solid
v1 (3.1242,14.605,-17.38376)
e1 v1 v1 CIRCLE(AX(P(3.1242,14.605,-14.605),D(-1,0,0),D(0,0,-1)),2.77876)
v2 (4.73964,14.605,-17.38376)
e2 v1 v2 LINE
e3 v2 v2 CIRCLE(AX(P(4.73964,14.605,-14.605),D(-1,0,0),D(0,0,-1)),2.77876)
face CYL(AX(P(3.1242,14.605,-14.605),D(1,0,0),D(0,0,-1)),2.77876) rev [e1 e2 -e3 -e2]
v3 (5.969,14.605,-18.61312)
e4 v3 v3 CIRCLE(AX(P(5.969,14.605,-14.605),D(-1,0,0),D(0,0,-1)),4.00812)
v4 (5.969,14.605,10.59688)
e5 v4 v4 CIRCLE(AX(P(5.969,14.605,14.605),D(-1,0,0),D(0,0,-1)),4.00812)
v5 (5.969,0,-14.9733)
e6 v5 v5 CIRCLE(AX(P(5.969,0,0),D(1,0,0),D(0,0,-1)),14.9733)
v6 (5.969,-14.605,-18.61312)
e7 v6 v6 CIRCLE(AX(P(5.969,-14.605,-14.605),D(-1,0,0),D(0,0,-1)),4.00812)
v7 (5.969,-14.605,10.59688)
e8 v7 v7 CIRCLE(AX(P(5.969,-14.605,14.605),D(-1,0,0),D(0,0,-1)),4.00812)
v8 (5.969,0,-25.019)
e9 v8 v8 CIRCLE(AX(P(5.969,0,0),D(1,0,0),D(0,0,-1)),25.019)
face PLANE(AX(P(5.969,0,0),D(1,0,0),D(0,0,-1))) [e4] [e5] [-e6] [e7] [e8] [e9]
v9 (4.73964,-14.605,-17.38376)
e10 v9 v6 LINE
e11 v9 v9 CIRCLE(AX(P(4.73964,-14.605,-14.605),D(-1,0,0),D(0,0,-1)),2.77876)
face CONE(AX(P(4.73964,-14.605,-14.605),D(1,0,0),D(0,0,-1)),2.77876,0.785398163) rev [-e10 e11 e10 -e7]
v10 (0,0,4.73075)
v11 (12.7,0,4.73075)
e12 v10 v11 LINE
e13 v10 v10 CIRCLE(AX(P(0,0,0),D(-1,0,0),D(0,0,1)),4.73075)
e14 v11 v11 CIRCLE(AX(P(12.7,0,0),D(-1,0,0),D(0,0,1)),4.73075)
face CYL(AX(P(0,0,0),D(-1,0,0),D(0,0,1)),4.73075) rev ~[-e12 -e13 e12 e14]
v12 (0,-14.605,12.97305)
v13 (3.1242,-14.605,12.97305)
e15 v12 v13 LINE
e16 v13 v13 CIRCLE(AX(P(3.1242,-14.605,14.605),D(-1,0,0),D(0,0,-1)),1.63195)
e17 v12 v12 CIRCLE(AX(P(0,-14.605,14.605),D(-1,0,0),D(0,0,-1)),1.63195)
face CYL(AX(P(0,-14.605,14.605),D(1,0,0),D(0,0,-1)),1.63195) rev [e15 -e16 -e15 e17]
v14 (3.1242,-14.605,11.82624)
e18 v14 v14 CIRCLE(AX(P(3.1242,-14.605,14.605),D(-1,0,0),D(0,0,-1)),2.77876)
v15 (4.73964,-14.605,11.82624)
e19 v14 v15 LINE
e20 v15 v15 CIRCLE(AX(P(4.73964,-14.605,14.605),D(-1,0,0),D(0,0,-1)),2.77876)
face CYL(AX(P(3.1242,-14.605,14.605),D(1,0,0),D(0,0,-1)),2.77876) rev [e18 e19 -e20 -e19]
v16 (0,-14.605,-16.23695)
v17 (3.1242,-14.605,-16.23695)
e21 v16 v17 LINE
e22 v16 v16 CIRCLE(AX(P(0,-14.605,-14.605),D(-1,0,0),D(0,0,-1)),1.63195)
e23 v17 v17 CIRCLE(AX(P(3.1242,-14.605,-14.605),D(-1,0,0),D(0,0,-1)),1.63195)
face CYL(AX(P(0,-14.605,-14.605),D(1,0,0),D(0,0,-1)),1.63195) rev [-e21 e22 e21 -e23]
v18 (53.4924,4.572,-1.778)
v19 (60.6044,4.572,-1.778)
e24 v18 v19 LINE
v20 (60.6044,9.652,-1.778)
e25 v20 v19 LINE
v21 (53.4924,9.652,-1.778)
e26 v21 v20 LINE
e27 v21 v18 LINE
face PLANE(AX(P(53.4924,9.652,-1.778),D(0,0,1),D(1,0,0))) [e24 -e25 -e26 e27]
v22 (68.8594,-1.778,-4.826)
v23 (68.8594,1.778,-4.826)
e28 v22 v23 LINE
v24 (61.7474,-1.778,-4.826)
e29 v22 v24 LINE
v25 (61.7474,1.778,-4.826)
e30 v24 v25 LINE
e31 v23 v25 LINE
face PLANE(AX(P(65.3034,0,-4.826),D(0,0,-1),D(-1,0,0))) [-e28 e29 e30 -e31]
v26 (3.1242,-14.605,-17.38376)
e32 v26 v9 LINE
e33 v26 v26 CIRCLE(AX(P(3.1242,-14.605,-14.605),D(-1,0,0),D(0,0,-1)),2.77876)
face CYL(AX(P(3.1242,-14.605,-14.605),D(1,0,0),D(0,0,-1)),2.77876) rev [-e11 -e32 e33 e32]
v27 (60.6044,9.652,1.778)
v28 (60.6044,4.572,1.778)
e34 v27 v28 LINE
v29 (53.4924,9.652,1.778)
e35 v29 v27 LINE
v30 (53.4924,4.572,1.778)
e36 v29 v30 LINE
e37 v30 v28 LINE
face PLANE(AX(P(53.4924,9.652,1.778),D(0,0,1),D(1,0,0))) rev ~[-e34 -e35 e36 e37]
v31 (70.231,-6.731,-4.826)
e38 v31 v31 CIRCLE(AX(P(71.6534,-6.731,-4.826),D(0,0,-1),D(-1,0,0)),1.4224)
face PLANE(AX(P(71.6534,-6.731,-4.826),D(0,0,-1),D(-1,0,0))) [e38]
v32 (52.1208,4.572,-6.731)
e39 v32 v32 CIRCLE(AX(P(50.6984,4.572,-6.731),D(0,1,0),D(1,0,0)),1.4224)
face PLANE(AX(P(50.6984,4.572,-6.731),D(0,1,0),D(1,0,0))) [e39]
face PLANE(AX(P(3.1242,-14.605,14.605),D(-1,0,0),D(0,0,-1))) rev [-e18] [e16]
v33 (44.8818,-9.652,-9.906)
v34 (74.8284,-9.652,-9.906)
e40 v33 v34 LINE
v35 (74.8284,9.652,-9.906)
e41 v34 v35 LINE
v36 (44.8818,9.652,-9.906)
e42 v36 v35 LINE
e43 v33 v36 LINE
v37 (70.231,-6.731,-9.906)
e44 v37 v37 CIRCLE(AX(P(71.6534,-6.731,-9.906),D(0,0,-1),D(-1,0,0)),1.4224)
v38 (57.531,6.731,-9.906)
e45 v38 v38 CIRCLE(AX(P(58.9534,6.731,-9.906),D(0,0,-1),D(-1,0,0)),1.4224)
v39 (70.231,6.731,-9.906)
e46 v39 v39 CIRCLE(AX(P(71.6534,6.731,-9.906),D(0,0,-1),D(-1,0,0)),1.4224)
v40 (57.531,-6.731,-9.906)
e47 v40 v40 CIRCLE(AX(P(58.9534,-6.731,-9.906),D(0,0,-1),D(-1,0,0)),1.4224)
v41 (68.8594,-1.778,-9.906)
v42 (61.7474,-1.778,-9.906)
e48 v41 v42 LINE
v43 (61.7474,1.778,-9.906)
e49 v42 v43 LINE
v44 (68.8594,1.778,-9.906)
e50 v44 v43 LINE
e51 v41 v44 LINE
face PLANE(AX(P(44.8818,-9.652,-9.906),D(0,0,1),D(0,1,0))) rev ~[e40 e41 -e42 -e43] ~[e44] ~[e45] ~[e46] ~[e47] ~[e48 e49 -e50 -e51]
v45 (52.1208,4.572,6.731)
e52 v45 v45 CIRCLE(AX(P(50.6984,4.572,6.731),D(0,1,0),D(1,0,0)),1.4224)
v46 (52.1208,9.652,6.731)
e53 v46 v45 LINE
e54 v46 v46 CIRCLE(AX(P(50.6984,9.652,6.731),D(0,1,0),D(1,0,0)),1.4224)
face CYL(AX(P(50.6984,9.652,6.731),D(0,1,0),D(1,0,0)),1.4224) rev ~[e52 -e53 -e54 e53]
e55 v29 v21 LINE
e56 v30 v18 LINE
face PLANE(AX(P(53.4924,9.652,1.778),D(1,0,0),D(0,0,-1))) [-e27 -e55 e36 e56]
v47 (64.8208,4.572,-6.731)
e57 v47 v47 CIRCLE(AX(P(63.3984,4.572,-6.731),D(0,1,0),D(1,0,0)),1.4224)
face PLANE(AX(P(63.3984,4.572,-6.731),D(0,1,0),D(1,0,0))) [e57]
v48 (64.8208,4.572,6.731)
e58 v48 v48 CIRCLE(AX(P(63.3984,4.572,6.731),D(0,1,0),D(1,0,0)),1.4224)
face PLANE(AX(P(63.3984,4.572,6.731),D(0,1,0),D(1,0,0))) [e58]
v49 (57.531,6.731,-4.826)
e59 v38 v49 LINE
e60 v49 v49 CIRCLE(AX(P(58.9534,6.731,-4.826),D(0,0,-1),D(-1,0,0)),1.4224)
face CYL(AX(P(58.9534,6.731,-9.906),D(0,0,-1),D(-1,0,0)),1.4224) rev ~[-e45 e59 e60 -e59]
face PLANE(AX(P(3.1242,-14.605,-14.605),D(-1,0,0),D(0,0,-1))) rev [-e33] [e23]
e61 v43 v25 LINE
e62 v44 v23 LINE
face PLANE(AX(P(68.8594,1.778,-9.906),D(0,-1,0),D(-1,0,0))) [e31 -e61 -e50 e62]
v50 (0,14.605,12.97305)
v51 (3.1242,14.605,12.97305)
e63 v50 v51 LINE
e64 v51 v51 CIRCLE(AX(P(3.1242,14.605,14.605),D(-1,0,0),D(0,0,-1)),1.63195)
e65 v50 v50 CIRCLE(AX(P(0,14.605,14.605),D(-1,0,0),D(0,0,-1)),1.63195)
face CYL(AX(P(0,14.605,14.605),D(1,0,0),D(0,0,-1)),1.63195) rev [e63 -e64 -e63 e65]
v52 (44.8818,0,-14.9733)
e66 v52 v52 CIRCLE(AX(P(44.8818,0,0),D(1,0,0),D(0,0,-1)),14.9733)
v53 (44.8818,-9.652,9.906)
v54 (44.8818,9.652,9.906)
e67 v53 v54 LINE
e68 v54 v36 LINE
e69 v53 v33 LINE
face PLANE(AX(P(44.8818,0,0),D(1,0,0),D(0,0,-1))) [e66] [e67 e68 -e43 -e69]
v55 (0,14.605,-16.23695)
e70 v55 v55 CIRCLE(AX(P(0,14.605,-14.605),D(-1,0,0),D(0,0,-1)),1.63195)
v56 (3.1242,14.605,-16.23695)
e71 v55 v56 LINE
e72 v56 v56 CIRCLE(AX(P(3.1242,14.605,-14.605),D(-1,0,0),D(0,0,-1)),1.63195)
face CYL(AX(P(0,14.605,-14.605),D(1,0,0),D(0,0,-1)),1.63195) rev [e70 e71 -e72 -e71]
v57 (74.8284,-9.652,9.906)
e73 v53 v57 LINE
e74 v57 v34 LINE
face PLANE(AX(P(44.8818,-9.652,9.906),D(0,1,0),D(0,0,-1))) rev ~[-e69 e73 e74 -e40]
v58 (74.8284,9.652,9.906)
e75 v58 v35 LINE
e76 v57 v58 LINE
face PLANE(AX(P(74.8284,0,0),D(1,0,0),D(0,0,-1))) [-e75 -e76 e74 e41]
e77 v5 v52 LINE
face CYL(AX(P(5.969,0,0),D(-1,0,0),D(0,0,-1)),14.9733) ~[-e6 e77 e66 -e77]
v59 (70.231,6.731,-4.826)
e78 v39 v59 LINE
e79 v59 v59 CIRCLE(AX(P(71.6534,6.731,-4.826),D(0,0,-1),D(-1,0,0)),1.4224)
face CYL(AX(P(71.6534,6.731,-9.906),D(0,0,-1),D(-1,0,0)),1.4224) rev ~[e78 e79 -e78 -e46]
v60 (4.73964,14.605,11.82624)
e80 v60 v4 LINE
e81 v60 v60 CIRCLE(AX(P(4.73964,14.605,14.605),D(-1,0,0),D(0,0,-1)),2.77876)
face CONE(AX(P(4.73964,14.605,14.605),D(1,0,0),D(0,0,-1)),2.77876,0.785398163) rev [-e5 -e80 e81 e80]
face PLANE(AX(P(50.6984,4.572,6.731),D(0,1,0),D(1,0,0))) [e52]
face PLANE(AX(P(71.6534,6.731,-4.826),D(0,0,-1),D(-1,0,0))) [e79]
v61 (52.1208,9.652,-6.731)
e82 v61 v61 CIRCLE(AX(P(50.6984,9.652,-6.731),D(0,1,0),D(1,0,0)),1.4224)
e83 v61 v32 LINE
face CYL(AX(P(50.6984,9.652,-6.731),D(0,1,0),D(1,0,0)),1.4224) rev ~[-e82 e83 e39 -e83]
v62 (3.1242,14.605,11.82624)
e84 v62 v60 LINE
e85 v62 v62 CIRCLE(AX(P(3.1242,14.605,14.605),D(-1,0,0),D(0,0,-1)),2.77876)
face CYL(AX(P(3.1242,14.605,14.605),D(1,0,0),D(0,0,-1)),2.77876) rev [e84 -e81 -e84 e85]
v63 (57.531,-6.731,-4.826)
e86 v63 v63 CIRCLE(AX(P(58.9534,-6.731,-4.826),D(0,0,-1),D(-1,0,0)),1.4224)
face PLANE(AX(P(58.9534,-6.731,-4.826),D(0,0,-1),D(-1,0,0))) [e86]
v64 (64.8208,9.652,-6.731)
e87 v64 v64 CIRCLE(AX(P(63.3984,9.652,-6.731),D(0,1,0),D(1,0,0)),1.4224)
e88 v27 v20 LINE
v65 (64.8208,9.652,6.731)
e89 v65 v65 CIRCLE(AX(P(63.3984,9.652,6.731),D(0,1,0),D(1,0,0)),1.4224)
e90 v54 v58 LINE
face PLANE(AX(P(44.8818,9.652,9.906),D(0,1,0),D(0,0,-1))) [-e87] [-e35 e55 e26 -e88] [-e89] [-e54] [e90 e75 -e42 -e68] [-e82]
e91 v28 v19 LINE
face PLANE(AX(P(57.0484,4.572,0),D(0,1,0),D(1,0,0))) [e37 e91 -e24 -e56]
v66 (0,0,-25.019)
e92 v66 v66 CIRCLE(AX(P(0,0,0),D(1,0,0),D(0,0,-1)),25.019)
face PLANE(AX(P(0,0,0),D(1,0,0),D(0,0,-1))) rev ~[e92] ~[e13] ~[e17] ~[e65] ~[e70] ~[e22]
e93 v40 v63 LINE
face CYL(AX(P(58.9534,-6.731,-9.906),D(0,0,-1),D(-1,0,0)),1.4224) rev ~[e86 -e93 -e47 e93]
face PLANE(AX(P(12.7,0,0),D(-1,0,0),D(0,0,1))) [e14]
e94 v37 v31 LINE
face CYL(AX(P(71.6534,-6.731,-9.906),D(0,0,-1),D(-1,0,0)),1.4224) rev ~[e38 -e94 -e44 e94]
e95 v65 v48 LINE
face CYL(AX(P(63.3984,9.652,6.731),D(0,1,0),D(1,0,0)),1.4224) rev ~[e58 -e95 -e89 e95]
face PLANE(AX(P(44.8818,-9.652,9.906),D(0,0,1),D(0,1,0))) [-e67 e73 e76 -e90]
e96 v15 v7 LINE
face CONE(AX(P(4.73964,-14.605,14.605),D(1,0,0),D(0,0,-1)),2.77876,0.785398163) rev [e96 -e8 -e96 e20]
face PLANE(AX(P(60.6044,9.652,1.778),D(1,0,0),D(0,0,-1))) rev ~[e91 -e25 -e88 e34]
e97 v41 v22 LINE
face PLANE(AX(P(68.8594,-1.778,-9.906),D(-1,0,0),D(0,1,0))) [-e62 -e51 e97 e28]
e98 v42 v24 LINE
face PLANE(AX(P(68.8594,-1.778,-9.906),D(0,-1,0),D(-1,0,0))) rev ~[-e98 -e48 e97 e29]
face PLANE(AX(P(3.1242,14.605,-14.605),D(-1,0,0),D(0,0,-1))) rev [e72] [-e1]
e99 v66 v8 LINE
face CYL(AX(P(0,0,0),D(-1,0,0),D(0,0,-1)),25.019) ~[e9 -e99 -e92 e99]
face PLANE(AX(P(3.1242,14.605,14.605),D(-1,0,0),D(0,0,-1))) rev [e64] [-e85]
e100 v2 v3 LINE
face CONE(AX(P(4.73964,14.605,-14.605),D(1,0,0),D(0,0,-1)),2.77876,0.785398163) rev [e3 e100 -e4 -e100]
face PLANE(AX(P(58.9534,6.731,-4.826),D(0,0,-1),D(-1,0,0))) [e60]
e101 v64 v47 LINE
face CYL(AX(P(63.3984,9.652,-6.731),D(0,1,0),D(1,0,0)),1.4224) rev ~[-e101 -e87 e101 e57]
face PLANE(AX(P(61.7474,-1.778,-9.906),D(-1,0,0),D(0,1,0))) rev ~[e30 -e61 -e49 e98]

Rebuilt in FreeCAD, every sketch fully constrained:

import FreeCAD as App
import Part
import Sketcher
from FreeCAD import Vector
Q = App.Units.Quantity

doc = App.newDocument("Part")
body = doc.addObject("PartDesign::Body", "Body")

sketch1 = doc.addObject("Sketcher::SketchObject", "Sketch")
body.addObject(sketch1)
sketch1.AttachmentSupport = (doc.YZ_Plane, [""])
sketch1.MapMode = "FlatFace"
sketch1.addGeometry(Part.Circle(Vector(0, 0, 0), Vector(0, 0, 1), 25), False)
sketch1.addConstraint([
    Sketcher.Constraint("Coincident", 0, 3, -1, 1),
    Sketcher.Constraint("Diameter", 0, Q("1.97 in")),
])
pad1 = doc.addObject("PartDesign::Pad", "Pad")
body.addObject(pad1)
pad1.Profile = sketch1
pad1.Length = Q("0.235 in")

sketch2 = doc.addObject("Sketcher::SketchObject", "Sketch001")
body.addObject(sketch2)
sketch2.AttachmentSupport = (doc.YZ_Plane, [""])
sketch2.MapMode = "FlatFace"
sketch2.AttachmentOffset = App.Placement(Vector(0, 0, 0.235 * 25.4), App.Rotation())
sketch2.addGeometry(Part.Circle(Vector(0, 0, 0), Vector(0, 0, 1), 15), False)
sketch2.addConstraint([
    Sketcher.Constraint("Coincident", 0, 3, -1, 1),
    Sketcher.Constraint("Diameter", 0, Q("1.179 in")),
])
pad2 = doc.addObject("PartDesign::Pad", "Pad001")
body.addObject(pad2)
pad2.Profile = sketch2
pad2.Length = Q("1.532 in")

sketch3 = doc.addObject("Sketcher::SketchObject", "Sketch002")
body.addObject(sketch3)
sketch3.AttachmentSupport = (doc.YZ_Plane, [""])
sketch3.MapMode = "FlatFace"
sketch3.AttachmentOffset = App.Placement(Vector(0, 0, 1.767 * 25.4), App.Rotation())
sketch3.addGeometry([
    Part.LineSegment(Vector(10, 10, 0), Vector(-10, 10, 0)),
    Part.LineSegment(Vector(-10, 10, 0), Vector(-10, -10, 0)),
    Part.LineSegment(Vector(-10, -10, 0), Vector(10, -10, 0)),
    Part.LineSegment(Vector(10, -10, 0), Vector(10, 10, 0)),
], False)
sketch3.addConstraint([
    Sketcher.Constraint("Coincident", 0, 2, 1, 1),
    Sketcher.Constraint("Coincident", 1, 2, 2, 1),
    Sketcher.Constraint("Coincident", 2, 2, 3, 1),
    Sketcher.Constraint("Coincident", 3, 2, 0, 1),
    Sketcher.Constraint("Horizontal", 0),
    Sketcher.Constraint("Vertical", 1),
    Sketcher.Constraint("Horizontal", 2),
    Sketcher.Constraint("Vertical", 3),
    Sketcher.Constraint("Symmetric", 0, 2, 2, 2, -1, 1),
    Sketcher.Constraint("DistanceX", 0, 2, 0, 1, Q("0.76 in")),
    Sketcher.Constraint("DistanceY", 1, 2, 1, 1, Q("0.78 in")),
])
pad3 = doc.addObject("PartDesign::Pad", "Pad002")
body.addObject(pad3)
pad3.Profile = sketch3
pad3.Length = Q("1.179 in")

sketch4 = doc.addObject("Sketcher::SketchObject", "Sketch003")
body.addObject(sketch4)
sketch4.AttachmentSupport = (doc.XZ_Plane, [""])
sketch4.MapMode = "FlatFace"
sketch4.AttachmentOffset = App.Placement(Vector(0, 0, -0.575 * 25.4), App.Rotation())
sketch4.addGeometry([
    Part.LineSegment(Vector(0, -14.6, 0), Vector(6, -14.6, 0)),
    Part.LineSegment(Vector(6, -14.6, 0), Vector(6, -18.6, 0)),
    Part.LineSegment(Vector(6, -18.6, 0), Vector(4.7, -17.4, 0)),
    Part.LineSegment(Vector(4.7, -17.4, 0), Vector(3.1, -17.4, 0)),
    Part.LineSegment(Vector(3.1, -17.4, 0), Vector(3.1, -16.2, 0)),
    Part.LineSegment(Vector(3.1, -16.2, 0), Vector(0, -16.2, 0)),
    Part.LineSegment(Vector(0, -16.2, 0), Vector(0, -14.6, 0)),
], False)
sketch4.addGeometry(Part.LineSegment(Vector(6, -14.6, 0), Vector(0, -14.6, 0)), True)
sketch4.addConstraint([
    Sketcher.Constraint("Coincident", 0, 2, 1, 1),
    Sketcher.Constraint("Coincident", 1, 2, 2, 1),
    Sketcher.Constraint("Coincident", 2, 2, 3, 1),
    Sketcher.Constraint("Coincident", 3, 2, 4, 1),
    Sketcher.Constraint("Coincident", 4, 2, 5, 1),
    Sketcher.Constraint("Coincident", 5, 2, 6, 1),
    Sketcher.Constraint("Coincident", 6, 2, 0, 1),
    Sketcher.Constraint("Horizontal", 0),
    Sketcher.Constraint("Vertical", 1),
    Sketcher.Constraint("Horizontal", 3),
    Sketcher.Constraint("Vertical", 4),
    Sketcher.Constraint("Horizontal", 5),
    Sketcher.Constraint("Vertical", 6),
    Sketcher.Constraint("Horizontal", 7),
    Sketcher.Constraint("Coincident", 7, 1, 0, 2),
    Sketcher.Constraint("PointOnObject", 5, 2, -2),
    Sketcher.Constraint("PointOnObject", 7, 2, -2),
    Sketcher.Constraint("Angle", 2, Q("135 deg")),
    Sketcher.Constraint("DistanceX", 0, 1, 0, 2, Q("0.235 in")),
    Sketcher.Constraint("DistanceX", 5, 2, 5, 1, Q("0.123 in")),
    Sketcher.Constraint("DistanceX", 3, 2, 3, 1, Q("0.0636 in")),
    Sketcher.Constraint("DistanceY", 1, 2, 1, 1, Q("0.1578 in")),
    Sketcher.Constraint("DistanceY", 0, 2, -1, 1, Q("0.575 in")),
    Sketcher.Constraint("DistanceY", 4, 1, 4, 2, Q("1.14681 mm")),
])
groove = doc.addObject("PartDesign::Groove", "Groove")
body.addObject(groove)
groove.Profile = sketch4
groove.ReferenceAxis = (sketch4, ["Axis0"])
groove.Angle = 360
doc.recompute()

linearpattern = doc.addObject("PartDesign::LinearPattern", "LinearPattern")
body.addObject(linearpattern)
linearpattern.Originals = [groove]
linearpattern.Direction = (doc.Z_Axis, [""])
linearpattern.Mode = "offset"
linearpattern.Offset = Q("1.15 in")
linearpattern.Occurrences = 2
body.Tip = linearpattern
doc.recompute()

linearpattern2 = doc.addObject("PartDesign::LinearPattern", "LinearPattern001")
body.addObject(linearpattern2)
linearpattern2.Originals = [groove]
linearpattern2.Direction = (doc.Y_Axis, [""])
linearpattern2.Mode = "offset"
linearpattern2.Offset = Q("1.15 in")
linearpattern2.Occurrences = 2
linearpattern2.Reversed = True
body.Tip = linearpattern2
doc.recompute()

datumline = doc.addObject("PartDesign::Line", "DatumLine")
body.addObject(datumline)
datumline.Placement = App.Placement(Vector(0, 0, 0), App.Rotation(Vector(0, 0, 1), Vector(0, -0.707106781, 0.707106781)))
linearpattern3 = doc.addObject("PartDesign::LinearPattern", "LinearPattern002")
body.addObject(linearpattern3)
linearpattern3.Originals = [groove]
linearpattern3.Direction = (datumline, [""])
linearpattern3.Mode = "offset"
linearpattern3.Offset = 41.309178
linearpattern3.Occurrences = 2
body.Tip = linearpattern3

sketch5 = doc.addObject("Sketcher::SketchObject", "Sketch004")
body.addObject(sketch5)
sketch5.AttachmentSupport = (doc.XZ_Plane, [""])
sketch5.MapMode = "FlatFace"
sketch5.AttachmentOffset = App.Placement(Vector(0, 0, -0.38 * 25.4), App.Rotation())
sketch5.addGeometry([
    Part.Circle(Vector(63.4, -6.7, 0), Vector(0, 0, 1), 1.4),
    Part.Circle(Vector(50.7, -6.7, 0), Vector(0, 0, 1), 1.4),
    Part.Circle(Vector(50.7, 6.7, 0), Vector(0, 0, 1), 1.4),
    Part.Circle(Vector(63.4, 6.7, 0), Vector(0, 0, 1), 1.4),
    Part.LineSegment(Vector(53.5, -1.8, 0), Vector(53.5, 1.8, 0)),
    Part.LineSegment(Vector(53.5, 1.8, 0), Vector(60.6, 1.8, 0)),
    Part.LineSegment(Vector(60.6, 1.8, 0), Vector(60.6, -1.8, 0)),
    Part.LineSegment(Vector(60.6, -1.8, 0), Vector(53.5, -1.8, 0)),
], False)
sketch5.addConstraint([
    Sketcher.Constraint("Coincident", 4, 2, 5, 1),
    Sketcher.Constraint("Coincident", 5, 2, 6, 1),
    Sketcher.Constraint("Coincident", 6, 2, 7, 1),
    Sketcher.Constraint("Coincident", 7, 2, 4, 1),
    Sketcher.Constraint("Vertical", 4),
    Sketcher.Constraint("Horizontal", 5),
    Sketcher.Constraint("Vertical", 6),
    Sketcher.Constraint("Horizontal", 7),
    Sketcher.Constraint("Equal", 0, 1),
    Sketcher.Constraint("Equal", 1, 2),
    Sketcher.Constraint("Equal", 2, 3),
    Sketcher.Constraint("Symmetric", 1, 3, 2, 3, -1),
    Sketcher.Constraint("Symmetric", 0, 3, 3, 3, -1),
    Sketcher.Constraint("Horizontal", 0, 3, 1, 3),
    Sketcher.Constraint("Diameter", 0, Q("0.112 in")),
    Sketcher.Constraint("DistanceX", 5, 1, 5, 2, Q("0.28 in")),
    Sketcher.Constraint("DistanceY", 4, 1, 4, 2, Q("0.14 in")),
    Sketcher.Constraint("DistanceX", 1, 3, 0, 3, Q("0.5 in")),
    Sketcher.Constraint("DistanceY", -1, 1, 4, 2, Q("0.07 in")),
    Sketcher.Constraint("DistanceY", 1, 3, 2, 3, Q("0.53 in")),
    Sketcher.Constraint("DistanceX", 2, 3, 4, 2, Q("0.11 in")),
    Sketcher.Constraint("DistanceX", -1, 1, 0, 3, Q("2.496 in")),
])
pocket1 = doc.addObject("PartDesign::Pocket", "Pocket")
body.addObject(pocket1)
pocket1.Profile = sketch5
pocket1.Length = Q("0.2 in")
pocket1.Reversed = True

sketch6 = doc.addObject("Sketcher::SketchObject", "Sketch005")
body.addObject(sketch6)
sketch6.AttachmentSupport = (doc.XY_Plane, [""])
sketch6.MapMode = "FlatFace"
sketch6.AttachmentOffset = App.Placement(Vector(0, 0, -0.39 * 25.4), App.Rotation())
sketch6.addGeometry([
    Part.Circle(Vector(71.7, 6.7, 0), Vector(0, 0, 1), 1.4),
    Part.Circle(Vector(59, 6.7, 0), Vector(0, 0, 1), 1.4),
    Part.Circle(Vector(59, -6.7, 0), Vector(0, 0, 1), 1.4),
    Part.Circle(Vector(71.7, -6.7, 0), Vector(0, 0, 1), 1.4),
    Part.LineSegment(Vector(68.9, 1.8, 0), Vector(68.9, -1.8, 0)),
    Part.LineSegment(Vector(68.9, -1.8, 0), Vector(61.7, -1.8, 0)),
    Part.LineSegment(Vector(61.7, -1.8, 0), Vector(61.7, 1.8, 0)),
    Part.LineSegment(Vector(61.7, 1.8, 0), Vector(68.9, 1.8, 0)),
], False)
sketch6.addConstraint([
    Sketcher.Constraint("Coincident", 4, 2, 5, 1),
    Sketcher.Constraint("Coincident", 5, 2, 6, 1),
    Sketcher.Constraint("Coincident", 6, 2, 7, 1),
    Sketcher.Constraint("Coincident", 7, 2, 4, 1),
    Sketcher.Constraint("Vertical", 4),
    Sketcher.Constraint("Horizontal", 5),
    Sketcher.Constraint("Vertical", 6),
    Sketcher.Constraint("Horizontal", 7),
    Sketcher.Constraint("Equal", 0, 1),
    Sketcher.Constraint("Equal", 1, 2),
    Sketcher.Constraint("Equal", 2, 3),
    Sketcher.Constraint("Symmetric", 1, 3, 2, 3, -1),
    Sketcher.Constraint("Symmetric", 0, 3, 3, 3, -1),
    Sketcher.Constraint("Horizontal", 0, 3, 1, 3),
    Sketcher.Constraint("Diameter", 0, Q("0.112 in")),
    Sketcher.Constraint("DistanceX", 5, 2, 5, 1, Q("0.28 in")),
    Sketcher.Constraint("DistanceY", 4, 2, 4, 1, Q("0.14 in")),
    Sketcher.Constraint("DistanceX", 1, 3, 0, 3, Q("0.5 in")),
    Sketcher.Constraint("DistanceY", 4, 2, -1, 1, Q("0.07 in")),
    Sketcher.Constraint("DistanceY", 2, 3, 1, 3, Q("0.53 in")),
    Sketcher.Constraint("DistanceX", 4, 2, 3, 3, Q("0.11 in")),
    Sketcher.Constraint("DistanceX", -1, 1, 0, 3, Q("2.821 in")),
])
pocket2 = doc.addObject("PartDesign::Pocket", "Pocket001")
body.addObject(pocket2)
pocket2.Profile = sketch6
pocket2.Length = Q("0.2 in")
pocket2.Reversed = True

sketch7 = doc.addObject("Sketcher::SketchObject", "Sketch006")
body.addObject(sketch7)
sketch7.AttachmentSupport = (doc.YZ_Plane, [""])
sketch7.MapMode = "FlatFace"
sketch7.addGeometry(Part.Circle(Vector(0, 0, 0), Vector(0, 0, 1), 4.7), False)
sketch7.addConstraint([
    Sketcher.Constraint("Coincident", 0, 3, -1, 1),
    Sketcher.Constraint("Diameter", 0, Q("0.3725 in")),
])
pocket3 = doc.addObject("PartDesign::Pocket", "Pocket002")
body.addObject(pocket3)
pocket3.Profile = sketch7
pocket3.Length = Q("0.5 in")
pocket3.Reversed = True

doc.recompute()
